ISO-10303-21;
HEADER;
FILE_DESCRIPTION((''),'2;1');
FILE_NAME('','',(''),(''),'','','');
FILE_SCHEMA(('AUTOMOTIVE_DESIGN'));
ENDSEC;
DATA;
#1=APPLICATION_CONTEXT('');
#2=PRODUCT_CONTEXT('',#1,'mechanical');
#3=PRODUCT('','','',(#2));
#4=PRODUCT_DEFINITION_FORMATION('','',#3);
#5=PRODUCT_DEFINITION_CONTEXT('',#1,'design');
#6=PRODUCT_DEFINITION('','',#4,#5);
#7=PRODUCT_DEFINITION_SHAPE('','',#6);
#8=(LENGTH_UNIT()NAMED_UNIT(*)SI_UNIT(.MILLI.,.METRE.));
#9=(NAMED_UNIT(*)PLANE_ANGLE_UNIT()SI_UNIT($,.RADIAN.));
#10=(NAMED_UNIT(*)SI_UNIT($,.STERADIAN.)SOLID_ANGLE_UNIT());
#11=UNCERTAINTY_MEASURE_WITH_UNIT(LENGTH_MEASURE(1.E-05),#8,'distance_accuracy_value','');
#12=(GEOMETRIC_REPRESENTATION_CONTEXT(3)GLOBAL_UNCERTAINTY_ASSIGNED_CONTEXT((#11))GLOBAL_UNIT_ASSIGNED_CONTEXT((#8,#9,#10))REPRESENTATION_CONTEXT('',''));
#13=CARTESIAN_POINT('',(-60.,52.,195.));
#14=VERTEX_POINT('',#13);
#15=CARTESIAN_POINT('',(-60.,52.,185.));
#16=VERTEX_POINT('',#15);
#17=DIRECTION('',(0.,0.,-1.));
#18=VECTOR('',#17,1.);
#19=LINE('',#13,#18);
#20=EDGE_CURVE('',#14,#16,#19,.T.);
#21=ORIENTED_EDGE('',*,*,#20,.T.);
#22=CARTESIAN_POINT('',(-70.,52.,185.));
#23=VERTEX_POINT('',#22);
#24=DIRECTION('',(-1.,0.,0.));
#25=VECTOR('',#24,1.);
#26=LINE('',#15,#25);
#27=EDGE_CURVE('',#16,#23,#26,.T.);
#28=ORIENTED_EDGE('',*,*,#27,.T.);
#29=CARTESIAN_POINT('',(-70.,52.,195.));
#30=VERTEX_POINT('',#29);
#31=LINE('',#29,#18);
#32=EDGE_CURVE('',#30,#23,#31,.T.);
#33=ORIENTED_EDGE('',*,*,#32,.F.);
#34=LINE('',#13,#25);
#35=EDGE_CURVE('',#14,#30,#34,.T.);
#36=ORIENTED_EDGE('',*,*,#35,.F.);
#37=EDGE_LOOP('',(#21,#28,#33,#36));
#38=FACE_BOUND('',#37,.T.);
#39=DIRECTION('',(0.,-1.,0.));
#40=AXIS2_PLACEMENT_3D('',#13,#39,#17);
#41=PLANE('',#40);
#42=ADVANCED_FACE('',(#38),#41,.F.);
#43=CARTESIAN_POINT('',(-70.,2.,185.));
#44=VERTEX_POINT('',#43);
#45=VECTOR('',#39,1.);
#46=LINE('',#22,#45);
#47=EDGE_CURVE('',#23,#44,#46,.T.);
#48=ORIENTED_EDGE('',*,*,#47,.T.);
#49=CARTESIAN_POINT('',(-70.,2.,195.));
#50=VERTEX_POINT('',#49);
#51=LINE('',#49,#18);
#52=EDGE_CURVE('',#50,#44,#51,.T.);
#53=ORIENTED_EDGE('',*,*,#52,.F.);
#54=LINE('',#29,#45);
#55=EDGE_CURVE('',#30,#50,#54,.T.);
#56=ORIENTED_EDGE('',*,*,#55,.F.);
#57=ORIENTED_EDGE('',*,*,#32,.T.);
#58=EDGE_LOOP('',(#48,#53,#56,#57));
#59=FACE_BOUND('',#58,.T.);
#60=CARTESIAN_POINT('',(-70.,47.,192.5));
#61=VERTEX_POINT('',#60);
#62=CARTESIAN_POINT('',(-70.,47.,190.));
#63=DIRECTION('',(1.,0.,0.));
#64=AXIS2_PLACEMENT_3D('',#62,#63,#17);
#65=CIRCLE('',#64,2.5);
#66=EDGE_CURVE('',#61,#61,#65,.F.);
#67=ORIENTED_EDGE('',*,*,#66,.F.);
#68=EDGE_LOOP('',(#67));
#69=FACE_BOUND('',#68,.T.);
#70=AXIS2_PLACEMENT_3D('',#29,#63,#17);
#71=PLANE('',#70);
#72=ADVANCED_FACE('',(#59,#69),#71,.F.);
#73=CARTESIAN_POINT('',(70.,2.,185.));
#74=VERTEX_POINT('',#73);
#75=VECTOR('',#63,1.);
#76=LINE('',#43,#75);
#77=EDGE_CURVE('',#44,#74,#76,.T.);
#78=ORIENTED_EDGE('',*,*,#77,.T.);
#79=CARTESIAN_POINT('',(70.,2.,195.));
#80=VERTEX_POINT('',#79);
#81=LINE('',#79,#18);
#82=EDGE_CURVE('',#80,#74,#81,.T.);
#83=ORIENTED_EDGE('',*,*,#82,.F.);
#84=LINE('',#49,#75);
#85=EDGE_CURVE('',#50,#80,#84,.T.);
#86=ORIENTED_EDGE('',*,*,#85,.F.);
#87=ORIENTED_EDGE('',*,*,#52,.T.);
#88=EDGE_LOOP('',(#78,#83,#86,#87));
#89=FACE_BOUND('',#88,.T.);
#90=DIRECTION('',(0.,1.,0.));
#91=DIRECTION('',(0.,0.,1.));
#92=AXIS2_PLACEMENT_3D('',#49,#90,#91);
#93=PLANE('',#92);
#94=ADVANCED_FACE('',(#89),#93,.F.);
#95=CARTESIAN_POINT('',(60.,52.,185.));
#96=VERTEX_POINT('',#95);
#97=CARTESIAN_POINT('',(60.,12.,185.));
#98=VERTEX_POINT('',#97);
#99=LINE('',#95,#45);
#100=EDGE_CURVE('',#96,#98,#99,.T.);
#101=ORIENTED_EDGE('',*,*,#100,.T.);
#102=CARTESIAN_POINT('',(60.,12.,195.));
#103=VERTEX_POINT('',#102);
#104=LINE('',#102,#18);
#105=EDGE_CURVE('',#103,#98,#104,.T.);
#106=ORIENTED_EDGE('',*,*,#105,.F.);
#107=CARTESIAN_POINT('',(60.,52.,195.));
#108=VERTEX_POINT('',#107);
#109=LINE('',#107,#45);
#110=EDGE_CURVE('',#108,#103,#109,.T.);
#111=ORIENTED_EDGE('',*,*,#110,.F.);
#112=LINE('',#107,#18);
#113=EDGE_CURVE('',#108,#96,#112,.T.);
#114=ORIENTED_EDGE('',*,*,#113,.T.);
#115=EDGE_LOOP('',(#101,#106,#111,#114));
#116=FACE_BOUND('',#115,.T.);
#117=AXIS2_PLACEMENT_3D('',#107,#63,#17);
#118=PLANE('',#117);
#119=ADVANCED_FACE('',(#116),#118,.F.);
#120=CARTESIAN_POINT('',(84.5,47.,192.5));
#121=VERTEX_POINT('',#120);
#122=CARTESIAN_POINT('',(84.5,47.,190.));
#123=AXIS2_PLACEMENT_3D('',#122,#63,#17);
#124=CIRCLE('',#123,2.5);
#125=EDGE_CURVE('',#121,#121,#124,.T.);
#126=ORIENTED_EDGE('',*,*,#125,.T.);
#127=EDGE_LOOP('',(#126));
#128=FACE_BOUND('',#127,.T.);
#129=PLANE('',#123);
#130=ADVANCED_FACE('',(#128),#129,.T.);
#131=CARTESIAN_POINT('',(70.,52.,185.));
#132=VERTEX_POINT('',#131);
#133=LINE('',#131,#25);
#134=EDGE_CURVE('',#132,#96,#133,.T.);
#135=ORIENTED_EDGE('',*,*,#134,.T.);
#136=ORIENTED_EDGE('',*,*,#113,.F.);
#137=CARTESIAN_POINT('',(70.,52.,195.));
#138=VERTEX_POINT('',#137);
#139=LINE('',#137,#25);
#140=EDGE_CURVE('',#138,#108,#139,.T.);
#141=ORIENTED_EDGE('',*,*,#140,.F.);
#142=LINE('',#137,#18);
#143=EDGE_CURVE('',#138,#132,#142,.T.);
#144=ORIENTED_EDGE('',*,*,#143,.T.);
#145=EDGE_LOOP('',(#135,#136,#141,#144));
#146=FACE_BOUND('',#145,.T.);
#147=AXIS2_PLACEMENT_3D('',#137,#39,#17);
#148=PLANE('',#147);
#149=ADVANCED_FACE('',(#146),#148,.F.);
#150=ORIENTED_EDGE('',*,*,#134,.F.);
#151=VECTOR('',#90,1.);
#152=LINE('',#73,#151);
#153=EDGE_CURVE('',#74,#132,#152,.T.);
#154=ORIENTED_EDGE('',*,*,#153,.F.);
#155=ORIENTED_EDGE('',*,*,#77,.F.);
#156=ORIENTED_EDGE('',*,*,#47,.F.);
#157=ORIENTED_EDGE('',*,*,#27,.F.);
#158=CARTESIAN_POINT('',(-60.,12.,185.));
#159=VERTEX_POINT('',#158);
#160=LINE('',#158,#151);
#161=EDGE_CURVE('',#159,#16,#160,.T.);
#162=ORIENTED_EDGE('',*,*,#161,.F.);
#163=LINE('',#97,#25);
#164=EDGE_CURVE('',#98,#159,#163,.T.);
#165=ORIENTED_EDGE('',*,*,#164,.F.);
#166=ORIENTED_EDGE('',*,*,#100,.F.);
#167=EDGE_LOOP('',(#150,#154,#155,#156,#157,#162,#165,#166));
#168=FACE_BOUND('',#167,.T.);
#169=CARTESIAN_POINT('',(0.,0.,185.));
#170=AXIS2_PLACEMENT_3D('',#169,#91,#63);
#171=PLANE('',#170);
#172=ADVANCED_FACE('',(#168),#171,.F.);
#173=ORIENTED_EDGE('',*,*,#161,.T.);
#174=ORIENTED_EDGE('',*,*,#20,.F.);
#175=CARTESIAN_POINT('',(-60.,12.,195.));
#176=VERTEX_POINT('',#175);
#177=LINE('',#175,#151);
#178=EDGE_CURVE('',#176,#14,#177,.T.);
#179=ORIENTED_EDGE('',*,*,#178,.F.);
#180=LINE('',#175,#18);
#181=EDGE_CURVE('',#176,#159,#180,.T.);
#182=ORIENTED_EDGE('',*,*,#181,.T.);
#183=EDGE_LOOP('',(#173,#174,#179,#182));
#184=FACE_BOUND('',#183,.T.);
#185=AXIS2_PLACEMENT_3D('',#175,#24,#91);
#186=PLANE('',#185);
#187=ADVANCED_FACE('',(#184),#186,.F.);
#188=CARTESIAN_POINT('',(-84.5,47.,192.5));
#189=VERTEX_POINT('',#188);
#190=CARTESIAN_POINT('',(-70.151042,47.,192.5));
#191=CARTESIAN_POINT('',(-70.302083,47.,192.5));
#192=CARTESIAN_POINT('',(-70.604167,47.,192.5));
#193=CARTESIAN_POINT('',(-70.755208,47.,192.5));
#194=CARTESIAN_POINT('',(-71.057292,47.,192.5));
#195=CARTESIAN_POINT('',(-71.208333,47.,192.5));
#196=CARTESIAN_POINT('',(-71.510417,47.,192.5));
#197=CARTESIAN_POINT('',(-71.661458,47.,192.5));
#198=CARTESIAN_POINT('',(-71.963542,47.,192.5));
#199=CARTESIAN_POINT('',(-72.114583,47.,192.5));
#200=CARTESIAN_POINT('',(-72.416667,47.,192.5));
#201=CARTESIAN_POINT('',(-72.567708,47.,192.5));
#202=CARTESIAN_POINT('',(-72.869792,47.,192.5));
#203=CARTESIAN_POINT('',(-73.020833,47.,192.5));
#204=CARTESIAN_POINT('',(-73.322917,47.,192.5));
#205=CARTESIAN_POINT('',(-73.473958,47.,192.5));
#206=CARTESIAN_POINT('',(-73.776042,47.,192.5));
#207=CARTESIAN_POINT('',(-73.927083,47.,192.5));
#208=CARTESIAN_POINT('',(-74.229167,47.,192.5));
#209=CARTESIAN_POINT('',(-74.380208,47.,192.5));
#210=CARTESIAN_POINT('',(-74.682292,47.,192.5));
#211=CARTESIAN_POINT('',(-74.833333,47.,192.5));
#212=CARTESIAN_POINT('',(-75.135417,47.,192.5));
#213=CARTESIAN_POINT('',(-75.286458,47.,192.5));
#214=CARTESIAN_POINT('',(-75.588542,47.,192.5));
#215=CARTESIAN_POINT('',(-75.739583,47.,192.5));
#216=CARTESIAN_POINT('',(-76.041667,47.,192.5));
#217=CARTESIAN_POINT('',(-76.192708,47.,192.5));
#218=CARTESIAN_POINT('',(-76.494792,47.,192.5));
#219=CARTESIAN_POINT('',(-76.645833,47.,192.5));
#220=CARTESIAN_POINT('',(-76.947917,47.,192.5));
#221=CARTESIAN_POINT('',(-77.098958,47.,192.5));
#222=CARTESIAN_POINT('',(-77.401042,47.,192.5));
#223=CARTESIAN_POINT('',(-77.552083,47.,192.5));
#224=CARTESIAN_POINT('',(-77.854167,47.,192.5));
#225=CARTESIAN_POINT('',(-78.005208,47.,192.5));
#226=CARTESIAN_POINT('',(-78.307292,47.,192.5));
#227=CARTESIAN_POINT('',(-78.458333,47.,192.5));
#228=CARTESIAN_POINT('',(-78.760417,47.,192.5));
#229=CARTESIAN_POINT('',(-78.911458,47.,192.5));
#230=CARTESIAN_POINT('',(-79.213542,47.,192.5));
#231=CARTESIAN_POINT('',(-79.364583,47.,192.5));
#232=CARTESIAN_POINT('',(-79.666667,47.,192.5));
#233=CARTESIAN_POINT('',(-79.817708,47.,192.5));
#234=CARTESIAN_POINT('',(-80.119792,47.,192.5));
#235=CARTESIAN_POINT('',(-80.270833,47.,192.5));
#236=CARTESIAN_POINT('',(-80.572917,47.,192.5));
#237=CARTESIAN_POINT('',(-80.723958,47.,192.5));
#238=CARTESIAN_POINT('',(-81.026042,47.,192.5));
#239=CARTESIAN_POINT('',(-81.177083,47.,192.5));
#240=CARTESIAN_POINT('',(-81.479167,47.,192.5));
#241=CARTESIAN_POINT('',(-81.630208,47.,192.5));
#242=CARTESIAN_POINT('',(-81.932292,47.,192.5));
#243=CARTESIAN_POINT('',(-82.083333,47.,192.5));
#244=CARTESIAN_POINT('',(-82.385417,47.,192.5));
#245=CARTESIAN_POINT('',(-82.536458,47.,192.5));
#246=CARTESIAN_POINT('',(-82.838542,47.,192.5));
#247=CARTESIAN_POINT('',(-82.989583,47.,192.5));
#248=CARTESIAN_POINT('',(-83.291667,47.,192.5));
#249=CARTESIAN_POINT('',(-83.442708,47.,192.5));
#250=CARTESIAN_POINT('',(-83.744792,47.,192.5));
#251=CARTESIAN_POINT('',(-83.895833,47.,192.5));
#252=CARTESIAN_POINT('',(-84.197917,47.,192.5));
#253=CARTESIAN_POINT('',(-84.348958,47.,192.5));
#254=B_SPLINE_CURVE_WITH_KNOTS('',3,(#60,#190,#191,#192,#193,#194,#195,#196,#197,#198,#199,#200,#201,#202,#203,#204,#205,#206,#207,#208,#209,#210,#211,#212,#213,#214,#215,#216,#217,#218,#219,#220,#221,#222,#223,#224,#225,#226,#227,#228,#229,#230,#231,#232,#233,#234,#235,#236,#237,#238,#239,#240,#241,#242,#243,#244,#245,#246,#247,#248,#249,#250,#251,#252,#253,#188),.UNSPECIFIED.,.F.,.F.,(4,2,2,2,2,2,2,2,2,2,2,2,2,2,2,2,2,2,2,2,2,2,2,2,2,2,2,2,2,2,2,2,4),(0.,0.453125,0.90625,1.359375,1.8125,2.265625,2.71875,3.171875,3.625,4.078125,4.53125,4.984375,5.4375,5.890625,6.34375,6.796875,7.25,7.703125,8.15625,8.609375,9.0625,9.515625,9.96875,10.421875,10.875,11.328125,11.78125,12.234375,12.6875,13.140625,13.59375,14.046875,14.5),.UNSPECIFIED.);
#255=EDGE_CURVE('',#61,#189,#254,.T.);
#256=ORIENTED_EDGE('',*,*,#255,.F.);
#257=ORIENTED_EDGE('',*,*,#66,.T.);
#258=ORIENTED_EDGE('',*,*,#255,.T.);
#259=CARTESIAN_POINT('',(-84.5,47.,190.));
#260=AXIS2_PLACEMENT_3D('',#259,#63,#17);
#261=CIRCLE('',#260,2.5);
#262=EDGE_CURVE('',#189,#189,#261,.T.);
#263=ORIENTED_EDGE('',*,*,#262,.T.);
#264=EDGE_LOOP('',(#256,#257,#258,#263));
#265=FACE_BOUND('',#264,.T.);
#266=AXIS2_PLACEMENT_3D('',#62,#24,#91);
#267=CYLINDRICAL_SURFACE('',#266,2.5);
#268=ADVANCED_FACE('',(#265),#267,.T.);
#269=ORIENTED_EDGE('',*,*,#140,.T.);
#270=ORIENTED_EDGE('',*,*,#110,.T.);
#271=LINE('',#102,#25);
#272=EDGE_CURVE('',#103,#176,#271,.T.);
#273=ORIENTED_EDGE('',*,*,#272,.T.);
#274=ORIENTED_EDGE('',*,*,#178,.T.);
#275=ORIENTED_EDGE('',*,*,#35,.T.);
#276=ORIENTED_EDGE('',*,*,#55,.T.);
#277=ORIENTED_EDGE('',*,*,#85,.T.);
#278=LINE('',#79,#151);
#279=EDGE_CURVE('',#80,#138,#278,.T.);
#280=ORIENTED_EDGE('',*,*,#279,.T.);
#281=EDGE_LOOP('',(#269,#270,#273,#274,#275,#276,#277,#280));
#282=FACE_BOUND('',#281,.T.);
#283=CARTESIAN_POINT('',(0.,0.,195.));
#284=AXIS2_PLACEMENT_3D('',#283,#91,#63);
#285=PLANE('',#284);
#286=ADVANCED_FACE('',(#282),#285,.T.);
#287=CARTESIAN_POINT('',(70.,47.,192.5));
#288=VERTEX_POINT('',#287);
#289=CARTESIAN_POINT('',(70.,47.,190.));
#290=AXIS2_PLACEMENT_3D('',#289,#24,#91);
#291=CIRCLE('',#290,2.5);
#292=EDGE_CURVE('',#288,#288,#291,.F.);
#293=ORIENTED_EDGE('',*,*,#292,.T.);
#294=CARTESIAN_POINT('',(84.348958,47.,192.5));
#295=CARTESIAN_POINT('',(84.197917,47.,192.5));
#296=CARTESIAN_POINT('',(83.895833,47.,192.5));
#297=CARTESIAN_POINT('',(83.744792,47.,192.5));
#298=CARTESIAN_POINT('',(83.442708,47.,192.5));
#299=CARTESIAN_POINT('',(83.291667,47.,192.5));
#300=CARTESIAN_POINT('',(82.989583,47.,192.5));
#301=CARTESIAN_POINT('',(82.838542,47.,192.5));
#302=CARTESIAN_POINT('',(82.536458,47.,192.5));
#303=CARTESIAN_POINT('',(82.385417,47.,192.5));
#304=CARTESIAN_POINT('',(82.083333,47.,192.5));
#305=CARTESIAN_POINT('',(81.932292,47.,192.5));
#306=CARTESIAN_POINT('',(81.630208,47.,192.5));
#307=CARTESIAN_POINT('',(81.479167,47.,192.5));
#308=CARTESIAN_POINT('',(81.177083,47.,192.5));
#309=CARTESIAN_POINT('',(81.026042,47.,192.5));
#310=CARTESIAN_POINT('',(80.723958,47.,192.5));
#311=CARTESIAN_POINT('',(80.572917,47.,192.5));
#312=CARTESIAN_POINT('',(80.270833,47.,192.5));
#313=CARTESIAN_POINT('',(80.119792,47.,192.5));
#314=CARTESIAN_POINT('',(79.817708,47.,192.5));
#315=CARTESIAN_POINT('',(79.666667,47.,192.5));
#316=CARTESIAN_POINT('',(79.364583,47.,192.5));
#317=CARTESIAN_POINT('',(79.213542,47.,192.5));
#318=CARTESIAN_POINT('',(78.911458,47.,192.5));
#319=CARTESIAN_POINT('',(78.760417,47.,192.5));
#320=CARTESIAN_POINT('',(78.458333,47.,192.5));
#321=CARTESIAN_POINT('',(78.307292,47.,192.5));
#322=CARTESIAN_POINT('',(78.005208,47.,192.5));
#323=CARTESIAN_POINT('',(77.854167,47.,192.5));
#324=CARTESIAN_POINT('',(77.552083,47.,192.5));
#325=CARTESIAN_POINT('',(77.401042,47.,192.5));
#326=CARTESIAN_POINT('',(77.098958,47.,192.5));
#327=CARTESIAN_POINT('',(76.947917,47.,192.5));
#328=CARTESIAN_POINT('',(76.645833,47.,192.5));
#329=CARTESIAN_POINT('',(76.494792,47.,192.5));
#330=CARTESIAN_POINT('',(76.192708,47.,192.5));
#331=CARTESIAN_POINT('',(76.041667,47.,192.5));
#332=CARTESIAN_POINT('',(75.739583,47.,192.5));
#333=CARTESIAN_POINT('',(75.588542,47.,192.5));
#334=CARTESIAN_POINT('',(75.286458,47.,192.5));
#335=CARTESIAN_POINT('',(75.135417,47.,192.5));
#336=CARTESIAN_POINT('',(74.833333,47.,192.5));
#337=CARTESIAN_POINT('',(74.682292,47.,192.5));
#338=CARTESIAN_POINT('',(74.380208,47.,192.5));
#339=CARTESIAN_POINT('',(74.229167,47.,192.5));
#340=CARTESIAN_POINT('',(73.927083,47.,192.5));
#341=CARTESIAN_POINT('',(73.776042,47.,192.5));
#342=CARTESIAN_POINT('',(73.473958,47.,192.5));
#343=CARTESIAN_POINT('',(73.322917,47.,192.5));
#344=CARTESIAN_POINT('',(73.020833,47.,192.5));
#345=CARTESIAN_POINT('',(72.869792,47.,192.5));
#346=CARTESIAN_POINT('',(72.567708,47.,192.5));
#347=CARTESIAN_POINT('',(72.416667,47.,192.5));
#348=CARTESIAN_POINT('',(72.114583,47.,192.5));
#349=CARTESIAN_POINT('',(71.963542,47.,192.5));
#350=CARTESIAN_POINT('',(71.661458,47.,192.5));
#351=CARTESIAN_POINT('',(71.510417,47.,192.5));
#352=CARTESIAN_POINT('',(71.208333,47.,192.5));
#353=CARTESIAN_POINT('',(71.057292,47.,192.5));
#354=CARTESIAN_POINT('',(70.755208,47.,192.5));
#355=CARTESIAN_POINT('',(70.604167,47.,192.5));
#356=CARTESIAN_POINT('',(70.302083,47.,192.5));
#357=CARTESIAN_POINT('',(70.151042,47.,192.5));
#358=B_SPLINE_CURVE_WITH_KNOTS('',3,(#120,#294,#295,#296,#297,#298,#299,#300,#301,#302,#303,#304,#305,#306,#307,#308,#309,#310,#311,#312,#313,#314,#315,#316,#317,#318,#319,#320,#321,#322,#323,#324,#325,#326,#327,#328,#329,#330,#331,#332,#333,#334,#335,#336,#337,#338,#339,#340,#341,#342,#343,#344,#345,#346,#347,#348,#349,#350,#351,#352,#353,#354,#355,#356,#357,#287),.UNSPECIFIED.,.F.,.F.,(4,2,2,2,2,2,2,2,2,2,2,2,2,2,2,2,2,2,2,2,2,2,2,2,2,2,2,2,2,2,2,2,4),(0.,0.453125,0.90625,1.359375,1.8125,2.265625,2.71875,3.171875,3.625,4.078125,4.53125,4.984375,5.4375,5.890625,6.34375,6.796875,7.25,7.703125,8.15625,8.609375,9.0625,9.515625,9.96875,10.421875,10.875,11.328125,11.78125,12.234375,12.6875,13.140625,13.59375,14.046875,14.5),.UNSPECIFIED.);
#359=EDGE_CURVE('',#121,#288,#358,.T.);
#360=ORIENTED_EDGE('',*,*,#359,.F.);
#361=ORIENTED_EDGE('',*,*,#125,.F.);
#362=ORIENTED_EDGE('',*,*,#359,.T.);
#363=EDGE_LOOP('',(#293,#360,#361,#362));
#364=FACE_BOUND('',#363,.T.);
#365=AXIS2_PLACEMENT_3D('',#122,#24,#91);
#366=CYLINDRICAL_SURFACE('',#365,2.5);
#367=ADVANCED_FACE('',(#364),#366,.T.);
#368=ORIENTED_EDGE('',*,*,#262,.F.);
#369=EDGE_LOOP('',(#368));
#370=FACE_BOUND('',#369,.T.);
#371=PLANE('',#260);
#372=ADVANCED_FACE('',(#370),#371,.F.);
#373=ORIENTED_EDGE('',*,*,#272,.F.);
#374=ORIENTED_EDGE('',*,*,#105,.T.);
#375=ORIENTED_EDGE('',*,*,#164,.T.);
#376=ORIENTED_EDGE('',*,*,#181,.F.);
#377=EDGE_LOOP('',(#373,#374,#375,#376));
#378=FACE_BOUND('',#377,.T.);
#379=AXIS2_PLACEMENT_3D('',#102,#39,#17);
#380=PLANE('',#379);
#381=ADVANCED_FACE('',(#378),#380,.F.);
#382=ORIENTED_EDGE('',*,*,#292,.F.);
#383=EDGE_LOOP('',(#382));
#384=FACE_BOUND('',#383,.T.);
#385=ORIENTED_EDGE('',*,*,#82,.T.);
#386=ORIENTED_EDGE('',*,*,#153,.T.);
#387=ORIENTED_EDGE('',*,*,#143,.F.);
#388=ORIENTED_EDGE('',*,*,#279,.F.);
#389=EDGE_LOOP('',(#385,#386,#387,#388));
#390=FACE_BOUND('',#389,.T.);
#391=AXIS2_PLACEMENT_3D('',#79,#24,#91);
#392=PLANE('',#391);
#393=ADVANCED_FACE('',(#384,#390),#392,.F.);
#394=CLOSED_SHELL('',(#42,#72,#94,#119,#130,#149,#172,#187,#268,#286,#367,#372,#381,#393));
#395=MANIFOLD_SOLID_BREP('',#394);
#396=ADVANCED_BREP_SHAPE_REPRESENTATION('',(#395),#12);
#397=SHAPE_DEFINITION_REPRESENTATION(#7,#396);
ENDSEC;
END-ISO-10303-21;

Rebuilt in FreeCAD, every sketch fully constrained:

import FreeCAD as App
import Part
import Sketcher
from FreeCAD import Vector


def add_polygon(sketch, points):
    """Adds a closed chain of lines whose ends are joined by coincident constraints."""
    first, n = sketch.GeometryCount, len(points)
    for a, b in zip(points, points[1:] + points[:1]):
        sketch.addGeometry(Part.LineSegment(App.Vector(*a, 0), App.Vector(*b, 0)), False)
    for i in range(n):
        sketch.addConstraint(Sketcher.Constraint("Coincident", first + i, 2, first + (i + 1) % n, 1))

doc = App.newDocument("Part")
body = doc.addObject("PartDesign::Body", "Body")

sketch1 = doc.addObject("Sketcher::SketchObject", "Sketch")
body.addObject(sketch1)
sketch1.AttachmentSupport = (doc.XY_Plane, [""])
sketch1.MapMode = "FlatFace"
sketch1.AttachmentOffset = App.Placement(Vector(0, 0, 190), App.Rotation())
add_polygon(sketch1, [(-70, 2), (70, 2), (70, 52), (60, 52), (60, 12), (-60, 12), (-60, 52), (-70, 52)])
sketch1.addConstraint([
    Sketcher.Constraint("Horizontal", 0),
    Sketcher.Constraint("Vertical", 1),
    Sketcher.Constraint("Horizontal", 2),
    Sketcher.Constraint("Vertical", 3),
    Sketcher.Constraint("Horizontal", 4),
    Sketcher.Constraint("Vertical", 5),
    Sketcher.Constraint("Horizontal", 6),
    Sketcher.Constraint("Vertical", 7),
    Sketcher.Constraint("Symmetric", 2, 2, 5, 2, -2),
    Sketcher.Constraint("Equal", 2, 6),
    Sketcher.Constraint("DistanceX", 0, 1, 0, 2, 140.0),
    Sketcher.Constraint("DistanceX", 2, 2, 2, 1, 10.0),
    Sketcher.Constraint("DistanceY", 1, 1, 1, 2, 50.0),
    Sketcher.Constraint("DistanceY", 3, 2, 3, 1, 40.0),
    Sketcher.Constraint("DistanceY", -1, 1, 0, 2, 2.0),
])
pad1 = doc.addObject("PartDesign::Pad", "Pad")
body.addObject(pad1)
pad1.Profile = sketch1
pad1.Length = 10
pad1.Midplane = True

sketch2 = doc.addObject("Sketcher::SketchObject", "Sketch001")
body.addObject(sketch2)
sketch2.AttachmentSupport = (doc.YZ_Plane, [""])
sketch2.MapMode = "FlatFace"
sketch2.AttachmentOffset = App.Placement(Vector(0, 0, -77.25), App.Rotation())
sketch2.addGeometry(Part.Circle(Vector(47, 190, 0), Vector(0, 0, 1), 2.5), False)
sketch2.addConstraint([
    Sketcher.Constraint("Diameter", 0, 5.0),
    Sketcher.Constraint("DistanceX", -1, 1, 0, 3, 47.0),
    Sketcher.Constraint("DistanceY", -1, 1, 0, 3, 190.0),
])
pad2 = doc.addObject("PartDesign::Pad", "Pad001")
body.addObject(pad2)
pad2.Profile = sketch2
pad2.Length = 14.5
pad2.Midplane = True

sketch3 = doc.addObject("Sketcher::SketchObject", "Sketch002")
body.addObject(sketch3)
sketch3.AttachmentSupport = (doc.YZ_Plane, [""])
sketch3.MapMode = "FlatFace"
sketch3.AttachmentOffset = App.Placement(Vector(0, 0, 77.25), App.Rotation())
sketch3.addGeometry(Part.Circle(Vector(47, 190, 0), Vector(0, 0, 1), 2.5), False)
sketch3.addConstraint([
    Sketcher.Constraint("Diameter", 0, 5.0),
    Sketcher.Constraint("DistanceX", -1, 1, 0, 3, 47.0),
    Sketcher.Constraint("DistanceY", -1, 1, 0, 3, 190.0),
])
pad3 = doc.addObject("PartDesign::Pad", "Pad002")
body.addObject(pad3)
pad3.Profile = sketch3
pad3.Length = 14.5
pad3.Midplane = True

doc.recompute()
